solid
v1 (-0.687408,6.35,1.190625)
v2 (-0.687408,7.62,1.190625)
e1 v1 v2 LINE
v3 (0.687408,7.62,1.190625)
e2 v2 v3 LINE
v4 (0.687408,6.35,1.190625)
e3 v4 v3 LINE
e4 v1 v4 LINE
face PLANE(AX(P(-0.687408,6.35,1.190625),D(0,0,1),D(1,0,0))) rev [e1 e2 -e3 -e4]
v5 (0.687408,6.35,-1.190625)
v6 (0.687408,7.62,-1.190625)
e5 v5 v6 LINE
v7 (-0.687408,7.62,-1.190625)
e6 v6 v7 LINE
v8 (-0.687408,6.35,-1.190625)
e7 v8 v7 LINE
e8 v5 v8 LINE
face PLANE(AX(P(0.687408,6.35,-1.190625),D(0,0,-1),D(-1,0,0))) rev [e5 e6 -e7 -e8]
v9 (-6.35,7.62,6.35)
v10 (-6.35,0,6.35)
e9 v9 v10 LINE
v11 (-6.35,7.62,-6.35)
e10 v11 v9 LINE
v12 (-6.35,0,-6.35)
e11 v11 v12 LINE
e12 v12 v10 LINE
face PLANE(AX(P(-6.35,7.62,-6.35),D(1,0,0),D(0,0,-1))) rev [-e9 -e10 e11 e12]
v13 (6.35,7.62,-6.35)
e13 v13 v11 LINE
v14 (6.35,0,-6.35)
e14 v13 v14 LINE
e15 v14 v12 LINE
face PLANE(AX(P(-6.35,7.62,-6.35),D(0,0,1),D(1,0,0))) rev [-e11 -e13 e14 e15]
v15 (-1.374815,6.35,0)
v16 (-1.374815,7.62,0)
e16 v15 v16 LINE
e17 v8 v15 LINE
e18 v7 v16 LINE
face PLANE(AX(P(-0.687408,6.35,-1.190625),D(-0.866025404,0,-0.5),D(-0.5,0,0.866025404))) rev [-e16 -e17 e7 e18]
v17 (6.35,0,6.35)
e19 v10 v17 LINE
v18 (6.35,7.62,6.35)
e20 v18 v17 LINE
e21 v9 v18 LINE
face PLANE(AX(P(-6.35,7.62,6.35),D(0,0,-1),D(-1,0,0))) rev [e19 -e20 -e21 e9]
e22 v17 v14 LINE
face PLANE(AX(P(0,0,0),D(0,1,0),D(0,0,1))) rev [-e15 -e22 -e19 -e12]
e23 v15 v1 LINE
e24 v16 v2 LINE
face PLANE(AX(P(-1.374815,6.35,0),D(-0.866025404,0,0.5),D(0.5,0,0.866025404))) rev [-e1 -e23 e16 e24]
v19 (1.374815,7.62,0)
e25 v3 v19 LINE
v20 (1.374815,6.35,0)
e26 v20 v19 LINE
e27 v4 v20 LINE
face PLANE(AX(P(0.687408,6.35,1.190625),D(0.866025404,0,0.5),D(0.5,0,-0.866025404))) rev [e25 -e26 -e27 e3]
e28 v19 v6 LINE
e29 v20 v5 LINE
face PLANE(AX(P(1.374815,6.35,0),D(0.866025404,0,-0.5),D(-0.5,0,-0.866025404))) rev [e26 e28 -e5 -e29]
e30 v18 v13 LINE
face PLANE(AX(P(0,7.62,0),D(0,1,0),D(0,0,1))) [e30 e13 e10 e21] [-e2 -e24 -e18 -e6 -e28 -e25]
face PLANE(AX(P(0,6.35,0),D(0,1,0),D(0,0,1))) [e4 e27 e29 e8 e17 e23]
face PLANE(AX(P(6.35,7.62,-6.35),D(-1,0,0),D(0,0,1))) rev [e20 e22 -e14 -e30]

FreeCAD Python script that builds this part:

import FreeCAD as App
import Part
import Sketcher
from FreeCAD import Vector
Q = App.Units.Quantity

doc = App.newDocument("Part")
body = doc.addObject("PartDesign::Body", "Body")

sketch1 = body.newObject("Sketcher::SketchObject", "Sketch")
sketch1.AttachmentSupport = (doc.getObject("XZ_Plane"), [""])
sketch1.MapMode = "FlatFace"
sketch1.addGeometry([
    Part.LineSegment(Vector(-6, -6, 0), Vector(-6, 6, 0)),
    Part.LineSegment(Vector(-6, 6, 0), Vector(6, 6, 0)),
    Part.LineSegment(Vector(6, 6, 0), Vector(6, -6, 0)),
    Part.LineSegment(Vector(6, -6, 0), Vector(-6, -6, 0)),
], False)
sketch1.addConstraint([
    Sketcher.Constraint("Coincident", 0, 2, 1, 1),
    Sketcher.Constraint("Coincident", 1, 2, 2, 1),
    Sketcher.Constraint("Coincident", 2, 2, 3, 1),
    Sketcher.Constraint("Coincident", 3, 2, 0, 1),
    Sketcher.Constraint("Vertical", 0),
    Sketcher.Constraint("Horizontal", 1),
    Sketcher.Constraint("Vertical", 2),
    Sketcher.Constraint("Horizontal", 3),
    Sketcher.Constraint("Symmetric", 0, 2, 2, 2, -1, 1),
    Sketcher.Constraint("Equal", 3, 0),
    Sketcher.Constraint("DistanceX", 1, 1, 1, 2, Q("0.5 in")),
])
pad1 = body.newObject("PartDesign::Pad", "Pad")
pad1.Profile = sketch1
pad1.Length = Q("0.3 in")
pad1.Reversed = True

sketch2 = body.newObject("Sketcher::SketchObject", "Sketch001")
sketch2.AttachmentSupport = (doc.getObject("XZ_Plane"), [""])
sketch2.MapMode = "FlatFace"
sketch2.AttachmentOffset = App.Placement(Vector(0, 0, -0.3 * 25.4), App.Rotation())
sketch2.addGeometry([
    Part.LineSegment(Vector(0.7, 1.2, 0), Vector(1.4, 0, 0)),
    Part.LineSegment(Vector(1.4, 0, 0), Vector(0.7, -1.2, 0)),
    Part.LineSegment(Vector(0.7, -1.2, 0), Vector(-0.7, -1.2, 0)),
    Part.LineSegment(Vector(-0.7, -1.2, 0), Vector(-1.4, 0, 0)),
    Part.LineSegment(Vector(-1.4, 0, 0), Vector(-0.7, 1.2, 0)),
    Part.LineSegment(Vector(-0.7, 1.2, 0), Vector(0.7, 1.2, 0)),
], False)
sketch2.addConstraint([
    Sketcher.Constraint("Coincident", 0, 2, 1, 1),
    Sketcher.Constraint("Coincident", 1, 2, 2, 1),
    Sketcher.Constraint("Coincident", 2, 2, 3, 1),
    Sketcher.Constraint("Coincident", 3, 2, 4, 1),
    Sketcher.Constraint("Coincident", 4, 2, 5, 1),
    Sketcher.Constraint("Coincident", 5, 2, 0, 1),
    Sketcher.Constraint("Horizontal", 2),
    Sketcher.Constraint("Horizontal", 5),
    Sketcher.Constraint("Symmetric", 0, 2, 3, 2, -1, 1),
    Sketcher.Constraint("Symmetric", 1, 2, 4, 2, -1, 1),
    Sketcher.Constraint("PointOnObject", 0, 2, -1),
    Sketcher.Constraint("Parallel", 0, 3),
    Sketcher.Constraint("Vertical", 2, 2, 4, 2),
    Sketcher.Constraint("Angle", 0, Q("-60 deg")),
    Sketcher.Constraint("DistanceY", 1, 2, -1, 1, Q("0.046875 in")),
    Sketcher.Constraint("DistanceX", 2, 2, 2, 1, Q("1.374815 mm")),
])
pocket1 = body.newObject("PartDesign::Pocket", "Pocket")
pocket1.Profile = sketch2
pocket1.Length = Q("0.05 in")
pocket1.Reversed = True

doc.recompute()
